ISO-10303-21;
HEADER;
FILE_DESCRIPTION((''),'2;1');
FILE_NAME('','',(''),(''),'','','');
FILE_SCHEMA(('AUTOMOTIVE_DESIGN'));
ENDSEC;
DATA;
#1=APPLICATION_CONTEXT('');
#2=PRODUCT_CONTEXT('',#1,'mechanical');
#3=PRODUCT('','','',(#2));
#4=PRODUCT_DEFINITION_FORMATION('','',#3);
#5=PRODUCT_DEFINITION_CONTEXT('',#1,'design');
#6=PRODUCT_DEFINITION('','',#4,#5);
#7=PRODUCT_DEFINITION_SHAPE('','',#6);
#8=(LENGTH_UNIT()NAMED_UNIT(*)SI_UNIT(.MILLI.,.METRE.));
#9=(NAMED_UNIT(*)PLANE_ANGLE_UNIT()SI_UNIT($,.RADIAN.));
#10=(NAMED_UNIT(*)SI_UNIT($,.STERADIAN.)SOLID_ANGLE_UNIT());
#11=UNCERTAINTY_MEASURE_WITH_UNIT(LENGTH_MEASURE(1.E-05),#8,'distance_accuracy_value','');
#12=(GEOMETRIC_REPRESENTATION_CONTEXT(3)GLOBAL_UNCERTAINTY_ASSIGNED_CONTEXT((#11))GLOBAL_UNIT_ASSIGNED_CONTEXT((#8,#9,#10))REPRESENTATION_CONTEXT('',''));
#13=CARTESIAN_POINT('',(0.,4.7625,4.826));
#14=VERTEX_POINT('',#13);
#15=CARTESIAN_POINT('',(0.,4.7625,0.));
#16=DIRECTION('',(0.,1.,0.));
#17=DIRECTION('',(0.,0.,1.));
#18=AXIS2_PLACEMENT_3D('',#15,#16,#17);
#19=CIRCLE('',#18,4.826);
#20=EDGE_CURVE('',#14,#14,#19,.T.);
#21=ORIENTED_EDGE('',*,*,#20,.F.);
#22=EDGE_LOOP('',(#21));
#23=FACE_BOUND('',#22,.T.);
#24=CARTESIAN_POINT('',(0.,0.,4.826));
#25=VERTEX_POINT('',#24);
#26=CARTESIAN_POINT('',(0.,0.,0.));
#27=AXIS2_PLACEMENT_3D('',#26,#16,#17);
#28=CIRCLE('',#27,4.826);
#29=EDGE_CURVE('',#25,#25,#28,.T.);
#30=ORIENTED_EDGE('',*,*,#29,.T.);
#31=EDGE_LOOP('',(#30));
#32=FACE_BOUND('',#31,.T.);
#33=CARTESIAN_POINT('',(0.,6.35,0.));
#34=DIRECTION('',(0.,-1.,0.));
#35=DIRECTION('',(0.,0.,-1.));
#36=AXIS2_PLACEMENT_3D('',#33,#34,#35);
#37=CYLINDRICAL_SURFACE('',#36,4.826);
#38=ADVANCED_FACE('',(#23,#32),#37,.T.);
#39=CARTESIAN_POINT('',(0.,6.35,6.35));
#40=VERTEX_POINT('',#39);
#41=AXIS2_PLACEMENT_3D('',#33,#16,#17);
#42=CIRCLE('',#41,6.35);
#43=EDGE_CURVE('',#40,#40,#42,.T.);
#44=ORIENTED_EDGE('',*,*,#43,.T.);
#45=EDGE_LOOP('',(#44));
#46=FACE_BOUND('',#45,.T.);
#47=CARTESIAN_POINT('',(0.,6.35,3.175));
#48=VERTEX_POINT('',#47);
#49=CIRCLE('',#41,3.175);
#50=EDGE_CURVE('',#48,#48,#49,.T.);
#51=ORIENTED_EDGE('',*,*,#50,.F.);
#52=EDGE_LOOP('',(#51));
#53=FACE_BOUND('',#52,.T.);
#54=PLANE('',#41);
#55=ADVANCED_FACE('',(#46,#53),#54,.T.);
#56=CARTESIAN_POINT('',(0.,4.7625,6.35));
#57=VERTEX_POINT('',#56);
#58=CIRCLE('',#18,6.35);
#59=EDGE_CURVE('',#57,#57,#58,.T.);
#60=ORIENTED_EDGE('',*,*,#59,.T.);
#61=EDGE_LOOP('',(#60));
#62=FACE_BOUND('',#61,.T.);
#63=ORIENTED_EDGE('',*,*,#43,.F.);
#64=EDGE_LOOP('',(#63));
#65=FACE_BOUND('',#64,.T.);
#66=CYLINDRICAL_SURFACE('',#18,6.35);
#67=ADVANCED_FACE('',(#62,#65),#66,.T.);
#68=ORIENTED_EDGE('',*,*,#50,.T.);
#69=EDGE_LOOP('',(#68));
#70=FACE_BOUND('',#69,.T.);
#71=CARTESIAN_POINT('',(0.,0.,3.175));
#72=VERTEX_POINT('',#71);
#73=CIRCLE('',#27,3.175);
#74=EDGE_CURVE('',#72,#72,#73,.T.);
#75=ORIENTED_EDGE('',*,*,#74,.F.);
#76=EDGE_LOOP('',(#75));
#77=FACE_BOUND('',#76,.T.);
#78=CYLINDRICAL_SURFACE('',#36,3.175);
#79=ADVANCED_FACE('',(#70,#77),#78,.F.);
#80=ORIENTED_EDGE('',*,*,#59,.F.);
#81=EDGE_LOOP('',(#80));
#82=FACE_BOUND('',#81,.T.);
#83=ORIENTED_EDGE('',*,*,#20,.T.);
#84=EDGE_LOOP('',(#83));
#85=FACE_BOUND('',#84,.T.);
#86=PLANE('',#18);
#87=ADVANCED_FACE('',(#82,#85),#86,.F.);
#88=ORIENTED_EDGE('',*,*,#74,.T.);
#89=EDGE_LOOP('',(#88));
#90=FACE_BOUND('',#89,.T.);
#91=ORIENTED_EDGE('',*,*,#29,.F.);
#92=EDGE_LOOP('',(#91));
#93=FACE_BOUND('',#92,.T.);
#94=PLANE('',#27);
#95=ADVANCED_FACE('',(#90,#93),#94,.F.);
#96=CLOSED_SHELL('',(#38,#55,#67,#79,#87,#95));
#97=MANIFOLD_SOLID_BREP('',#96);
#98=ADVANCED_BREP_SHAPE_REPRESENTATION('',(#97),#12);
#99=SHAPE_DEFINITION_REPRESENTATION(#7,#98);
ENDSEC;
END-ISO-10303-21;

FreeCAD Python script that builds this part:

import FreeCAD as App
import Part
import Sketcher
Q = App.Units.Quantity

doc = App.newDocument("Part")
body = doc.addObject("PartDesign::Body", "Body")

sketch1 = doc.addObject("Sketcher::SketchObject", "Sketch")
body.addObject(sketch1)
sketch1.AttachmentSupport = (doc.XZ_Plane, [""])
sketch1.MapMode = "FlatFace"
sketch1.addGeometry([
    Part.Circle(App.Vector(0, 0, 0), App.Vector(0, 0, 1), 4.8),
    Part.Circle(App.Vector(0, 0, 0), App.Vector(0, 0, 1), 3.2),
], False)
sketch1.addConstraint([
    Sketcher.Constraint("Coincident", 0, 3, -1, 1),
    Sketcher.Constraint("Coincident", 1, 3, -1, 1),
    Sketcher.Constraint("Diameter", 0, Q("0.38 in")),
    Sketcher.Constraint("Diameter", 1, Q("0.25 in")),
])
pad1 = doc.addObject("PartDesign::Pad", "Pad")
body.addObject(pad1)
pad1.Profile = sketch1
pad1.Length = Q("0.25 in")
pad1.Reversed = True

sketch2 = doc.addObject("Sketcher::SketchObject", "Sketch001")
body.addObject(sketch2)
sketch2.AttachmentSupport = (doc.XZ_Plane, [""])
sketch2.MapMode = "FlatFace"
sketch2.AttachmentOffset = App.Placement(App.Vector(0, 0, -0.1875 * 25.4), App.Rotation())
sketch2.addGeometry([
    Part.Circle(App.Vector(0, 0, 0), App.Vector(0, 0, 1), 6.3),
    Part.Circle(App.Vector(0, 0, 0), App.Vector(0, 0, 1), 4.8),
], False)
sketch2.addConstraint([
    Sketcher.Constraint("Coincident", 0, 3, -1, 1),
    Sketcher.Constraint("Coincident", 1, 3, -1, 1),
    Sketcher.Constraint("Diameter", 0, Q("0.5 in")),
    Sketcher.Constraint("Diameter", 1, Q("0.38 in")),
])
pad2 = doc.addObject("PartDesign::Pad", "Pad001")
body.addObject(pad2)
pad2.Profile = sketch2
pad2.Length = Q("0.0625 in")
pad2.Reversed = True

doc.recompute()
